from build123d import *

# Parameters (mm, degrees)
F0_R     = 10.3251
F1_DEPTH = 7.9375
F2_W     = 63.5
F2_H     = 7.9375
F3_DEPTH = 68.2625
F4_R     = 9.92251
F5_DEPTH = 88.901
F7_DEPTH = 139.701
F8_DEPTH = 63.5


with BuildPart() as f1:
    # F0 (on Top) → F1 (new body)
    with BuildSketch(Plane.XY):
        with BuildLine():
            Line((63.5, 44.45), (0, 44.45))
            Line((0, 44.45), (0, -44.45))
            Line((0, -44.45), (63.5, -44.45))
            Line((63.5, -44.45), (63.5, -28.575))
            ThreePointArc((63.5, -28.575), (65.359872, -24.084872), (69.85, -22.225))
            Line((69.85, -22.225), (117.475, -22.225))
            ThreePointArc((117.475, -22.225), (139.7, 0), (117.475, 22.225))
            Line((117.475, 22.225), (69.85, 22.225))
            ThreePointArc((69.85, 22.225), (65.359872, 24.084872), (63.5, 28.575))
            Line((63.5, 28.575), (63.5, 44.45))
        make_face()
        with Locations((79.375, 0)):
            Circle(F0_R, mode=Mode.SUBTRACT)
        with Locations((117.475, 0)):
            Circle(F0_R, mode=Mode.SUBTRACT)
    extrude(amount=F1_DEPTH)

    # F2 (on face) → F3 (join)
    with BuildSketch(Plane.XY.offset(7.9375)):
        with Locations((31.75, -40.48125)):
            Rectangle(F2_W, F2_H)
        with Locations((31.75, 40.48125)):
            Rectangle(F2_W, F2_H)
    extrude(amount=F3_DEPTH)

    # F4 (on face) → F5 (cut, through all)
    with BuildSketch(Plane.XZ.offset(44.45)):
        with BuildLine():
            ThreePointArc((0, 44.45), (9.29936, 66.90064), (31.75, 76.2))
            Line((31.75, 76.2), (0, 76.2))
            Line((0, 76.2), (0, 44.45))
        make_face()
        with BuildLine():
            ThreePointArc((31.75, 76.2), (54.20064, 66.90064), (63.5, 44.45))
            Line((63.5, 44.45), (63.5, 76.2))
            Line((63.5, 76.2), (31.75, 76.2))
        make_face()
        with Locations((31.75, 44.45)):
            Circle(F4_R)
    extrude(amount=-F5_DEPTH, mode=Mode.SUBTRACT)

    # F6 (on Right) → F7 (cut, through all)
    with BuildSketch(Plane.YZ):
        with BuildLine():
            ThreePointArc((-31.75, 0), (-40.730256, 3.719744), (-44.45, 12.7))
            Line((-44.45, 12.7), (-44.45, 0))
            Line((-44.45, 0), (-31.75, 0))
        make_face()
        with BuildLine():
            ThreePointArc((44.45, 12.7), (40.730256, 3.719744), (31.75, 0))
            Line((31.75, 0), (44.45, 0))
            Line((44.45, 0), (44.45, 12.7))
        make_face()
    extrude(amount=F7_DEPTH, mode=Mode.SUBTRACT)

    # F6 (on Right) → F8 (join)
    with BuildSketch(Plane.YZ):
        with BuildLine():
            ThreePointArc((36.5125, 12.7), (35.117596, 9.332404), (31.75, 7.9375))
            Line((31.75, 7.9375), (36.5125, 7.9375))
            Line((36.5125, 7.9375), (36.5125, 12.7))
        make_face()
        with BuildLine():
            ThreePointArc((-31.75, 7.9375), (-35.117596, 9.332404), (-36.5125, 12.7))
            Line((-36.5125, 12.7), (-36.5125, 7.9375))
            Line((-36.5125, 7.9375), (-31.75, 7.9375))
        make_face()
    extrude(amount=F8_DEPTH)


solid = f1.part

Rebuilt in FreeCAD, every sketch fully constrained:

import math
import FreeCAD as App
import Part
import Sketcher
Q = App.Units.Quantity


def add_polygon(sketch, points):
    """Adds a closed chain of lines whose ends are joined by coincident constraints."""
    first, n = sketch.GeometryCount, len(points)
    for a, b in zip(points, points[1:] + points[:1]):
        sketch.addGeometry(Part.LineSegment(App.Vector(*a, 0), App.Vector(*b, 0)), False)
    for i in range(n):
        sketch.addConstraint(Sketcher.Constraint("Coincident", first + i, 2, first + (i + 1) % n, 1))

doc = App.newDocument("Part")
body = doc.addObject("PartDesign::Body", "Body")

sketch1 = doc.addObject("Sketcher::SketchObject", "Sketch")
body.addObject(sketch1)
sketch1.AttachmentSupport = (doc.XY_Plane, [""])
sketch1.MapMode = "FlatFace"
sketch1.addGeometry([
    Part.LineSegment(App.Vector(64, 44, 0), App.Vector(0, 44, 0)),
    Part.LineSegment(App.Vector(0, 44, 0), App.Vector(0, -44, 0)),
    Part.LineSegment(App.Vector(0, -44, 0), App.Vector(64, -44, 0)),
    Part.LineSegment(App.Vector(64, -44, 0), App.Vector(64, -29, 0)),
    Part.ArcOfCircle(Part.Circle(App.Vector(70, -29, 0), App.Vector(0, 0, 1), 6), math.radians(90), math.radians(180)),
    Part.LineSegment(App.Vector(70, -22, 0), App.Vector(117, -22, 0)),
    Part.ArcOfCircle(Part.Circle(App.Vector(117, 0, 0), App.Vector(0, 0, 1), 22), math.radians(-90), math.radians(90)),
    Part.LineSegment(App.Vector(117, 22, 0), App.Vector(70, 22, 0)),
    Part.ArcOfCircle(Part.Circle(App.Vector(70, 29, 0), App.Vector(0, 0, 1), 6), math.radians(-180), math.radians(-90)),
    Part.LineSegment(App.Vector(64, 29, 0), App.Vector(64, 44, 0)),
    Part.Circle(App.Vector(79, 0, 0), App.Vector(0, 0, 1), 10),
    Part.Circle(App.Vector(117, 0, 0), App.Vector(0, 0, 1), 10),
], False)
sketch1.addConstraint([
    Sketcher.Constraint("Coincident", 0, 2, 1, 1),
    Sketcher.Constraint("Coincident", 1, 2, 2, 1),
    Sketcher.Constraint("Coincident", 2, 2, 3, 1),
    Sketcher.Constraint("Tangent", 3, 2, 4, 2),
    Sketcher.Constraint("Tangent", 4, 1, 5, 1),
    Sketcher.Constraint("Tangent", 5, 2, 6, 1),
    Sketcher.Constraint("Tangent", 6, 2, 7, 1),
    Sketcher.Constraint("Tangent", 7, 2, 8, 2),
    Sketcher.Constraint("Tangent", 8, 1, 9, 1),
    Sketcher.Constraint("Coincident", 9, 2, 0, 1),
    Sketcher.Constraint("Horizontal", 0),
    Sketcher.Constraint("Vertical", 1),
    Sketcher.Constraint("Horizontal", 2),
    Sketcher.Constraint("Vertical", 3),
    Sketcher.Constraint("Horizontal", 5),
    Sketcher.Constraint("Horizontal", 7),
    Sketcher.Constraint("Vertical", 9),
    Sketcher.Constraint("Coincident", 11, 3, 6, 3),
    Sketcher.Constraint("Equal", 4, 8),
    Sketcher.Constraint("Equal", 10, 11),
    Sketcher.Constraint("Symmetric", 0, 2, 1, 2, -1, 1),
    Sketcher.Constraint("Symmetric", 4, 3, 8, 3, -1),
    Sketcher.Constraint("PointOnObject", 10, 3, -1),
    Sketcher.Constraint("Radius", 4, Q("0.25 in")),
    Sketcher.Constraint("Diameter", 10, Q("0.813 in")),
    Sketcher.Constraint("DistanceX", 0, 2, 0, 1, Q("2.5 in")),
    Sketcher.Constraint("DistanceY", 1, 2, 1, 1, Q("3.5 in")),
    Sketcher.Constraint("Radius", 6, Q("0.875 in")),
    Sketcher.Constraint("DistanceX", 10, 3, 6, 3, Q("1.5 in")),
    Sketcher.Constraint("DistanceX", 5, 1, 5, 2, Q("1.875 in")),
])
pad1 = doc.addObject("PartDesign::Pad", "Pad")
body.addObject(pad1)
pad1.Profile = sketch1
pad1.Length = Q("0.3125 in")

sketch2 = doc.addObject("Sketcher::SketchObject", "Sketch001")
body.addObject(sketch2)
sketch2.AttachmentSupport = (doc.XY_Plane, [""])
sketch2.MapMode = "FlatFace"
sketch2.AttachmentOffset = App.Placement(App.Vector(0, 0, 0.3125 * 25.4), App.Rotation())
add_polygon(sketch2, [(0, -37), (0, -44), (64, -44), (64, -37)])
add_polygon(sketch2, [(0, 44), (0, 37), (64, 37), (64, 44)])
sketch2.addConstraint([
    Sketcher.Constraint("Vertical", 0),
    Sketcher.Constraint("Horizontal", 1),
    Sketcher.Constraint("Vertical", 2),
    Sketcher.Constraint("Horizontal", 3),
    Sketcher.Constraint("Vertical", 4),
    Sketcher.Constraint("Horizontal", 5),
    Sketcher.Constraint("Vertical", 6),
    Sketcher.Constraint("Horizontal", 7),
    Sketcher.Constraint("Symmetric", 3, 2, 4, 2, -1, 1),
    Sketcher.Constraint("Symmetric", 1, 2, 6, 2, -1),
    Sketcher.Constraint("PointOnObject", 0, 2, -2),
    Sketcher.Constraint("DistanceX", 1, 1, 1, 2, Q("2.5 in")),
    Sketcher.Constraint("DistanceY", 1, 2, 6, 2, Q("3.5 in")),
    Sketcher.Constraint("DistanceY", 0, 2, 0, 1, Q("0.3125 in")),
])
pad2 = doc.addObject("PartDesign::Pad", "Pad001")
body.addObject(pad2)
pad2.Profile = sketch2
pad2.Length = Q("2.6875 in")

sketch3 = doc.addObject("Sketcher::SketchObject", "Sketch002")
body.addObject(sketch3)
sketch3.AttachmentSupport = (doc.XZ_Plane, [""])
sketch3.MapMode = "FlatFace"
sketch3.AttachmentOffset = App.Placement(App.Vector(0, 0, 1.75 * 25.4), App.Rotation())
sketch3.addGeometry([
    Part.ArcOfCircle(Part.Circle(App.Vector(32, 44, 0), App.Vector(0, 0, 1), 32), math.radians(90), math.radians(180)),
    Part.LineSegment(App.Vector(32, 76, 0), App.Vector(0, 76, 0)),
    Part.LineSegment(App.Vector(0, 76, 0), App.Vector(0, 44, 0)),
    Part.ArcOfCircle(Part.Circle(App.Vector(32, 44, 0), App.Vector(0, 0, 1), 32), math.radians(0), math.radians(90)),
    Part.LineSegment(App.Vector(64, 44, 0), App.Vector(64, 76, 0)),
    Part.LineSegment(App.Vector(64, 76, 0), App.Vector(32, 76, 0)),
    Part.Circle(App.Vector(32, 44, 0), App.Vector(0, 0, 1), 10),
], False)
sketch3.addConstraint([
    Sketcher.Constraint("Tangent", 0, 1, 1, 1),
    Sketcher.Constraint("Coincident", 1, 2, 2, 1),
    Sketcher.Constraint("Tangent", 2, 2, 0, 2),
    Sketcher.Constraint("Tangent", 3, 1, 4, 1),
    Sketcher.Constraint("Coincident", 4, 2, 5, 1),
    Sketcher.Constraint("Tangent", 5, 2, 3, 2),
    Sketcher.Constraint("Horizontal", 1),
    Sketcher.Constraint("Vertical", 2),
    Sketcher.Constraint("Vertical", 4),
    Sketcher.Constraint("Horizontal", 5),
    Sketcher.Constraint("Coincident", 3, 3, 0, 3),
    Sketcher.Constraint("Coincident", 6, 3, 0, 3),
    Sketcher.Constraint("Equal", 0, 3),
    Sketcher.Constraint("PointOnObject", 1, 2, -2),
    Sketcher.Constraint("Radius", 0, Q("1.25 in")),
    Sketcher.Constraint("DistanceY", -1, 1, 0, 1, Q("3 in")),
    Sketcher.Constraint("Diameter", 6, Q("0.7813 in")),
])
pocket1 = doc.addObject("PartDesign::Pocket", "Pocket")
body.addObject(pocket1)
pocket1.Profile = sketch3
pocket1.Type = "ThroughAll"

sketch4 = doc.addObject("Sketcher::SketchObject", "Sketch003")
body.addObject(sketch4)
sketch4.AttachmentSupport = (doc.YZ_Plane, [""])
sketch4.MapMode = "FlatFace"
sketch4.addGeometry([
    Part.ArcOfCircle(Part.Circle(App.Vector(-32, 13, 0), App.Vector(0, 0, 1), 13), math.radians(-180), math.radians(-90)),
    Part.LineSegment(App.Vector(-44, 13, 0), App.Vector(-44, 0, 0)),
    Part.LineSegment(App.Vector(-44, 0, 0), App.Vector(-32, 0, 0)),
    Part.ArcOfCircle(Part.Circle(App.Vector(32, 13, 0), App.Vector(0, 0, 1), 13), math.radians(-90), math.radians(0)),
    Part.LineSegment(App.Vector(32, 0, 0), App.Vector(44, 0, 0)),
    Part.LineSegment(App.Vector(44, 0, 0), App.Vector(44, 13, 0)),
], False)
sketch4.addConstraint([
    Sketcher.Constraint("Tangent", 0, 1, 1, 1),
    Sketcher.Constraint("Coincident", 1, 2, 2, 1),
    Sketcher.Constraint("Tangent", 2, 2, 0, 2),
    Sketcher.Constraint("Tangent", 3, 1, 4, 1),
    Sketcher.Constraint("Coincident", 4, 2, 5, 1),
    Sketcher.Constraint("Tangent", 5, 2, 3, 2),
    Sketcher.Constraint("Vertical", 1),
    Sketcher.Constraint("Horizontal", 2),
    Sketcher.Constraint("Horizontal", 4),
    Sketcher.Constraint("Vertical", 5),
    Sketcher.Constraint("Equal", 0, 3),
    Sketcher.Constraint("Symmetric", 2, 2, 3, 1, -1, 1),
    Sketcher.Constraint("PointOnObject", 1, 2, -1),
    Sketcher.Constraint("Radius", 0, Q("0.5 in")),
    Sketcher.Constraint("DistanceX", 0, 1, 3, 3, Q("3 in")),
])
pocket2 = doc.addObject("PartDesign::Pocket", "Pocket001")
body.addObject(pocket2)
pocket2.Profile = sketch4
pocket2.Type = "ThroughAll"
pocket2.Reversed = True

sketch5 = doc.addObject("Sketcher::SketchObject", "Sketch004")
body.addObject(sketch5)
sketch5.AttachmentSupport = (doc.YZ_Plane, [""])
sketch5.MapMode = "FlatFace"
sketch5.addGeometry([
    Part.ArcOfCircle(Part.Circle(App.Vector(31.7, 12.7, 0), App.Vector(0, 0, 1), 4.8), math.radians(-90), math.radians(0)),
    Part.LineSegment(App.Vector(31.8, 7.9, 0), App.Vector(36.5, 7.9, 0)),
    Part.LineSegment(App.Vector(36.5, 7.9, 0), App.Vector(36.5, 12.7, 0)),
    Part.ArcOfCircle(Part.Circle(App.Vector(-31.7, 12.7, 0), App.Vector(0, 0, 1), 4.8), math.radians(-180), math.radians(-90)),
    Part.LineSegment(App.Vector(-36.5, 12.7, 0), App.Vector(-36.5, 7.9, 0)),
    Part.LineSegment(App.Vector(-36.5, 7.9, 0), App.Vector(-31.8, 7.9, 0)),
], False)
sketch5.addConstraint([
    Sketcher.Constraint("Tangent", 0, 1, 1, 1),
    Sketcher.Constraint("Coincident", 1, 2, 2, 1),
    Sketcher.Constraint("Tangent", 2, 2, 0, 2),
    Sketcher.Constraint("Tangent", 3, 1, 4, 1),
    Sketcher.Constraint("Coincident", 4, 2, 5, 1),
    Sketcher.Constraint("Tangent", 5, 2, 3, 2),
    Sketcher.Constraint("Horizontal", 1),
    Sketcher.Constraint("Vertical", 2),
    Sketcher.Constraint("Vertical", 4),
    Sketcher.Constraint("Horizontal", 5),
    Sketcher.Constraint("Equal", 0, 3),
    Sketcher.Constraint("Symmetric", 0, 3, 3, 3, -2),
    Sketcher.Constraint("Radius", 0, Q("0.1875 in")),
    Sketcher.Constraint("DistanceY", -1, 1, 0, 3, Q("0.5 in")),
    Sketcher.Constraint("DistanceX", 3, 3, 0, 3, Q("2.5 in")),
])
pad3 = doc.addObject("PartDesign::Pad", "Pad002")
body.addObject(pad3)
pad3.Profile = sketch5
pad3.Length = Q("2.5 in")

doc.recompute()
